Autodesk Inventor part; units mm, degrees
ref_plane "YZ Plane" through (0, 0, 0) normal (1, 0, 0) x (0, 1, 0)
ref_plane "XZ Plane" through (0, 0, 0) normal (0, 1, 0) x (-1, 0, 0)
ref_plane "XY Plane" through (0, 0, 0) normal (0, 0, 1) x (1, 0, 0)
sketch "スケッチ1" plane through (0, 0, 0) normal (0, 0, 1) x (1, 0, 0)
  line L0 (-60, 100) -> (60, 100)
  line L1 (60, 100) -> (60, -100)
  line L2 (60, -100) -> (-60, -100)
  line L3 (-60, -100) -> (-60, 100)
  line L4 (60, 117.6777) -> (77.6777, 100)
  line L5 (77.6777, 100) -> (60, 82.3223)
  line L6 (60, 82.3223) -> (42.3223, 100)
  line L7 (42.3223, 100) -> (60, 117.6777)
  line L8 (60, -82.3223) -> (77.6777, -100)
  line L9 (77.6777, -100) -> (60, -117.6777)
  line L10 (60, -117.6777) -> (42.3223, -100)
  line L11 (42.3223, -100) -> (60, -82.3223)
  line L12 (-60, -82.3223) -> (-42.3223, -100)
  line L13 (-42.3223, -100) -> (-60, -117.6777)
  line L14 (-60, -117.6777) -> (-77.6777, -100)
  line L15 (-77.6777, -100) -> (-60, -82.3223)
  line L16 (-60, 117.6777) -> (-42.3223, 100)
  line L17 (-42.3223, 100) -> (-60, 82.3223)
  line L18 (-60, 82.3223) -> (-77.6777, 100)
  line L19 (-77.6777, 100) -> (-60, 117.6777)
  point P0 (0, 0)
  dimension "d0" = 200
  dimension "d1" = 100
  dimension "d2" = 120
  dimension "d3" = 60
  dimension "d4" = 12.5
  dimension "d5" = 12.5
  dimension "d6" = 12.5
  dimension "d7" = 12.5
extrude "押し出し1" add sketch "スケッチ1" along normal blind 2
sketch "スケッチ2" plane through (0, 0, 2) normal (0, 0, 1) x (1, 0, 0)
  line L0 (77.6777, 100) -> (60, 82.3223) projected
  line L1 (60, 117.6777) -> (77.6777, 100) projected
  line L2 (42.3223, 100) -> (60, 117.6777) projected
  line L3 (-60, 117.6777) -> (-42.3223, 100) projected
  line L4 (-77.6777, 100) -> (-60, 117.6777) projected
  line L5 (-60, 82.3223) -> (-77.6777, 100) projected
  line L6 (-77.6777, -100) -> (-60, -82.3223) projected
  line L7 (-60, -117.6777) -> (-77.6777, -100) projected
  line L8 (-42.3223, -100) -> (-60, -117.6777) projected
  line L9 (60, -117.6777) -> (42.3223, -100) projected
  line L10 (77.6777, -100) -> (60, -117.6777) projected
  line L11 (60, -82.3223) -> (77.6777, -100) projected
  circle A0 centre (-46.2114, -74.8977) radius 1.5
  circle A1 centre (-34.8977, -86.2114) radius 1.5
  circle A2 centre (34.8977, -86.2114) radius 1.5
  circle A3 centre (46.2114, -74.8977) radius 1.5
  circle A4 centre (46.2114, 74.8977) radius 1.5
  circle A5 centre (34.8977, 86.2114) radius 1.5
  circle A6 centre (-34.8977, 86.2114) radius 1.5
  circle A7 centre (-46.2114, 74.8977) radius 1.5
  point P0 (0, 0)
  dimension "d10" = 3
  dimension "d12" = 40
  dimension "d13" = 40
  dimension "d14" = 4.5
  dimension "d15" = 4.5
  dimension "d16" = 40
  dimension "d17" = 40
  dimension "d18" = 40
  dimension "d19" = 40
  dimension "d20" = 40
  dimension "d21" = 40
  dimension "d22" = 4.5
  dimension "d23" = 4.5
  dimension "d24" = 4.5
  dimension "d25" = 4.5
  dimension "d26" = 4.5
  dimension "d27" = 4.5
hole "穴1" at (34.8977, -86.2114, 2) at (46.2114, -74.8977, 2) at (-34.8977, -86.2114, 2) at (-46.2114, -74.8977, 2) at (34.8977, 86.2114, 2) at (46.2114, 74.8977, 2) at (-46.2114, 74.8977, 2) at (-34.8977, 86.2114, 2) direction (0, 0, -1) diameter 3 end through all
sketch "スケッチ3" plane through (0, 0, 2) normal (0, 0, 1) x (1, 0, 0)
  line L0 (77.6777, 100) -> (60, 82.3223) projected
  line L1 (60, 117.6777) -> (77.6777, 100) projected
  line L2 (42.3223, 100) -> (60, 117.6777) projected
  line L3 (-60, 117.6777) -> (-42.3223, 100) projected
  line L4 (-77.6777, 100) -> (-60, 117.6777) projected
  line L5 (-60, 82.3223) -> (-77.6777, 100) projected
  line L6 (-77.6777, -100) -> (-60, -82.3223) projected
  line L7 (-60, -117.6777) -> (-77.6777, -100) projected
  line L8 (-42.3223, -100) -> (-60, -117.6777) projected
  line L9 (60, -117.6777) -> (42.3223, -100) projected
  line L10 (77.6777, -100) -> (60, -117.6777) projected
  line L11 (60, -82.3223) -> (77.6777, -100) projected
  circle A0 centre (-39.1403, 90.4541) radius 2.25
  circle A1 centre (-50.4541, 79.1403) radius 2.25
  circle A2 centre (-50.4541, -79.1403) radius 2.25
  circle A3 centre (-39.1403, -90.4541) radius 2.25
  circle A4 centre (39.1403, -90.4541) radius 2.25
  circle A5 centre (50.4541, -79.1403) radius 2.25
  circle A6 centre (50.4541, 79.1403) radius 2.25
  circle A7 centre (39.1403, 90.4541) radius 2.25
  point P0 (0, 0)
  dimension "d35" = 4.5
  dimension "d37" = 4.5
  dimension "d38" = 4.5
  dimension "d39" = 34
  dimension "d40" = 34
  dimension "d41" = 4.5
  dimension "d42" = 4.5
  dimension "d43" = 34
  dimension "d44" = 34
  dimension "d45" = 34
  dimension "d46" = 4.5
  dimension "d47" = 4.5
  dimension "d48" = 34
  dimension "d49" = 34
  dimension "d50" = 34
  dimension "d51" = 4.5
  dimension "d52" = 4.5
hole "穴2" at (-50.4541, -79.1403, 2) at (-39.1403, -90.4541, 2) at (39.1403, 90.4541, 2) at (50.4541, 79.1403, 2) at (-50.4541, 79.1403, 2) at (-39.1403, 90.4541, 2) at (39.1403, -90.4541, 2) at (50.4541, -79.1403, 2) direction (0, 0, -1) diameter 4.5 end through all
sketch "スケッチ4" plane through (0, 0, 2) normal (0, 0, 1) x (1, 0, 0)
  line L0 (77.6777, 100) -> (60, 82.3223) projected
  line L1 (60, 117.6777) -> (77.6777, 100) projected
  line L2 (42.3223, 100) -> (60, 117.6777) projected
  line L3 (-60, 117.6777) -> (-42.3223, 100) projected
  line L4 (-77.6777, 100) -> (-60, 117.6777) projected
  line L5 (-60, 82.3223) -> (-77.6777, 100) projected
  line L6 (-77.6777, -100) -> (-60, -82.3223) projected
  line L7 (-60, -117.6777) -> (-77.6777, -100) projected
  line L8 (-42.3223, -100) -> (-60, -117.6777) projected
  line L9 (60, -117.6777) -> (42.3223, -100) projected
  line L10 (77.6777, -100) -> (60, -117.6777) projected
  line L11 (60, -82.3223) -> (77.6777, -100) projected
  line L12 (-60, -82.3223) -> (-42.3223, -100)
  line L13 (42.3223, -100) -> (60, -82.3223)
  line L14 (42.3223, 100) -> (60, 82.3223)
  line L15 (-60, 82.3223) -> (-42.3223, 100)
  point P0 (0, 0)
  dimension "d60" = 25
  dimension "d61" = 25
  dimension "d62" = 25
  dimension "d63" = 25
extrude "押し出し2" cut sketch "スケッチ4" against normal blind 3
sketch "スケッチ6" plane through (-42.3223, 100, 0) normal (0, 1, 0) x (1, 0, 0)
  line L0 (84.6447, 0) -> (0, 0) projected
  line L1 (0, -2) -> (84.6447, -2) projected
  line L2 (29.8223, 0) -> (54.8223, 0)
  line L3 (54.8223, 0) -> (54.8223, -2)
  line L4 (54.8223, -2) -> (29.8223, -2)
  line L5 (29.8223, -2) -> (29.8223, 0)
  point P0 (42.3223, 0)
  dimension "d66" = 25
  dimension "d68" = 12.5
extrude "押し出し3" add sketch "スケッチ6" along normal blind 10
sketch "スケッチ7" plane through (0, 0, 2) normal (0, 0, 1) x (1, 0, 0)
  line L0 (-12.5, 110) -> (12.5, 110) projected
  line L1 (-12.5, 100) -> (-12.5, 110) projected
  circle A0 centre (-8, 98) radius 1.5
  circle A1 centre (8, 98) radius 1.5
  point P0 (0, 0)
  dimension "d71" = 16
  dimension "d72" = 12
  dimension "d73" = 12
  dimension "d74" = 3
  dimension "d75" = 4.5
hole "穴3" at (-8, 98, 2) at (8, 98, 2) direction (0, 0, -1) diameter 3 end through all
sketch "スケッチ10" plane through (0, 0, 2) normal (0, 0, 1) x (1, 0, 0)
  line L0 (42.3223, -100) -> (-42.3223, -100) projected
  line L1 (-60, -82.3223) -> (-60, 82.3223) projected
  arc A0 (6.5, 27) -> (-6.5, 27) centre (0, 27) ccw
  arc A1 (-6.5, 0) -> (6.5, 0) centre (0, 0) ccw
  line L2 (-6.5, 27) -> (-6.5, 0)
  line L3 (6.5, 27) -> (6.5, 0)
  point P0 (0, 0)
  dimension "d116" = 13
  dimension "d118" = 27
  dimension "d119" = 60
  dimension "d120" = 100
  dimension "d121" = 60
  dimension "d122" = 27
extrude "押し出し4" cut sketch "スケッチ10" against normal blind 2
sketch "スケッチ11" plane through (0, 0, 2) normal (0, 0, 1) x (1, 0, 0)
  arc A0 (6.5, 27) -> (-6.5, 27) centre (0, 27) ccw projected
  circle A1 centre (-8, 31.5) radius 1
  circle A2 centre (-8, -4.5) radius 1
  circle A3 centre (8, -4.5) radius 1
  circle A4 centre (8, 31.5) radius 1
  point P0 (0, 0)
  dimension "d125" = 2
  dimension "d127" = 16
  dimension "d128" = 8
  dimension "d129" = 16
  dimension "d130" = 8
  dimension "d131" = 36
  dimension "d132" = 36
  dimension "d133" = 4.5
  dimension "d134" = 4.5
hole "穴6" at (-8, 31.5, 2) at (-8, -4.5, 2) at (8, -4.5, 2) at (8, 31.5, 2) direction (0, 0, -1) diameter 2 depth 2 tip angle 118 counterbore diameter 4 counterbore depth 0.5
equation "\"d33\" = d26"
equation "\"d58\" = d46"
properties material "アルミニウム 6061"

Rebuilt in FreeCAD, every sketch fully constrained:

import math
import FreeCAD as App
import Part
import Sketcher

V = App.Vector


def add_polygon(sketch, points):
    """Adds a closed chain of lines whose ends are joined by coincident constraints."""
    first, n = sketch.GeometryCount, len(points)
    for a, b in zip(points, points[1:] + points[:1]):
        sketch.addGeometry(Part.LineSegment(App.Vector(*a, 0), App.Vector(*b, 0)), False)
    for i in range(n):
        sketch.addConstraint(Sketcher.Constraint("Coincident", first + i, 2, first + (i + 1) % n, 1))

doc = App.newDocument("Part")
body = doc.addObject("PartDesign::Body", "Body")

sketch1 = body.newObject("Sketcher::SketchObject", "Sketch")
sketch1.AttachmentSupport = (doc.getObject("XY_Plane"), [""])
sketch1.MapMode = "FlatFace"
add_polygon(sketch1, [(-78, 100), (-60, 82), (-60, -82), (-78, -100), (-60, -118), (-42, -100), (42, -100), (60, -118), (78, -100), (60, -82), (60, 82), (78, 100), (60, 118), (42, 100), (-42, 100), (-60, 118)])
sketch1.addConstraint([
    Sketcher.Constraint("Vertical", 1),
    Sketcher.Constraint("Horizontal", 5),
    Sketcher.Constraint("Vertical", 9),
    Sketcher.Constraint("Horizontal", 13),
    Sketcher.Constraint("Symmetric", 0, 2, 8, 2, -1, 1),
    Sketcher.Constraint("Symmetric", 2, 2, 10, 2, -1, 1),
    Sketcher.Constraint("Symmetric", 3, 2, 11, 2, -1, 1),
    Sketcher.Constraint("Symmetric", 4, 2, 12, 2, -1, 1),
    Sketcher.Constraint("Symmetric", 6, 2, 14, 2, -1, 1),
    Sketcher.Constraint("Symmetric", 7, 2, 15, 2, -1, 1),
    Sketcher.Constraint("Symmetric", 3, 2, 6, 2, -2),
    Sketcher.Constraint("Symmetric", 2, 2, 7, 2, -2),
    Sketcher.Constraint("Perpendicular", 0, 2),
    Sketcher.Constraint("Perpendicular", 2, 3),
    Sketcher.Constraint("Perpendicular", 3, 4),
    Sketcher.Constraint("Perpendicular", 4, 6),
    Sketcher.Constraint("Perpendicular", 6, 7),
    Sketcher.Constraint("Perpendicular", 8, 10),
    Sketcher.Constraint("Perpendicular", 12, 14),
    Sketcher.Constraint("Horizontal", 2, 2, 4, 2),
    Sketcher.Constraint("Vertical", 1, 2, 3, 2),
    Sketcher.Constraint("DistanceX", 0, 2, -1, 1, 60.0),
    Sketcher.Constraint("DistanceY", 2, 2, -1, 1, 100.0),
    Sketcher.Constraint("Distance", 0, 25.0),
])
pad1 = body.newObject("PartDesign::Pad", "Pad")
pad1.Profile = sketch1
pad1.Length = 2

sketch2 = body.newObject("Sketcher::SketchObject", "Sketch001")
sketch2.AttachmentSupport = (doc.getObject("XY_Plane"), [""])
sketch2.MapMode = "FlatFace"
sketch2.AttachmentOffset = App.Placement(V(0, 0, 2), App.Rotation())
sketch2.addGeometry([
    Part.Circle(V(34.9, -86.2, 0), V(0, 0, 1), 1.5),
    Part.Circle(V(46.2, -74.9, 0), V(0, 0, 1), 1.5),
    Part.Circle(V(-34.9, -86.2, 0), V(0, 0, 1), 1.5),
    Part.Circle(V(-46.2, -74.9, 0), V(0, 0, 1), 1.5),
    Part.Circle(V(34.9, 86.2, 0), V(0, 0, 1), 1.5),
    Part.Circle(V(46.2, 74.9, 0), V(0, 0, 1), 1.5),
    Part.Circle(V(-46.2, 74.9, 0), V(0, 0, 1), 1.5),
    Part.Circle(V(-34.9, 86.2, 0), V(0, 0, 1), 1.5),
], False)
sketch2.addConstraint([
    Sketcher.Constraint("Equal", 0, 1),
    Sketcher.Constraint("Equal", 1, 2),
    Sketcher.Constraint("Equal", 2, 3),
    Sketcher.Constraint("Equal", 3, 4),
    Sketcher.Constraint("Equal", 4, 5),
    Sketcher.Constraint("Equal", 5, 6),
    Sketcher.Constraint("Equal", 6, 7),
    Sketcher.Constraint("Symmetric", 2, 3, 4, 3, -1, 1),
    Sketcher.Constraint("Symmetric", 3, 3, 5, 3, -1, 1),
    Sketcher.Constraint("Symmetric", 1, 3, 6, 3, -1, 1),
    Sketcher.Constraint("Symmetric", 0, 3, 7, 3, -1, 1),
    Sketcher.Constraint("Symmetric", 0, 3, 2, 3, -2),
    Sketcher.Constraint("Symmetric", 1, 3, 3, 3, -2),
    Sketcher.Constraint("Diameter", 0, 3.0),
    Sketcher.Constraint("DistanceX", 2, 3, 1, 3, 81.109),
    Sketcher.Constraint("DistanceY", 1, 3, 4, 3, 161.109),
    Sketcher.Constraint("DistanceX", -1, 1, 0, 3, 34.8977),
    Sketcher.Constraint("DistanceY", 0, 3, -1, 1, 86.2114),
])
doc.recompute()
hole = body.newObject("PartDesign::Hole", "Hole")
hole.Profile = sketch2
hole.ThreadType = "None"
hole.Diameter = 3
hole.DepthType = "ThroughAll"

sketch3 = body.newObject("Sketcher::SketchObject", "Sketch002")
sketch3.AttachmentSupport = (doc.getObject("XY_Plane"), [""])
sketch3.MapMode = "FlatFace"
sketch3.AttachmentOffset = App.Placement(V(0, 0, 2), App.Rotation())
sketch3.addGeometry([
    Part.Circle(V(-50.5, -79.1, 0), V(0, 0, 1), 2.2),
    Part.Circle(V(-39.1, -90.5, 0), V(0, 0, 1), 2.2),
    Part.Circle(V(39.1, 90.5, 0), V(0, 0, 1), 2.2),
    Part.Circle(V(50.5, 79.1, 0), V(0, 0, 1), 2.2),
    Part.Circle(V(-50.5, 79.1, 0), V(0, 0, 1), 2.2),
    Part.Circle(V(-39.1, 90.5, 0), V(0, 0, 1), 2.2),
    Part.Circle(V(39.1, -90.5, 0), V(0, 0, 1), 2.2),
    Part.Circle(V(50.5, -79.1, 0), V(0, 0, 1), 2.2),
], False)
sketch3.addConstraint([
    Sketcher.Constraint("Equal", 0, 1),
    Sketcher.Constraint("Equal", 1, 2),
    Sketcher.Constraint("Equal", 2, 3),
    Sketcher.Constraint("Equal", 3, 4),
    Sketcher.Constraint("Equal", 4, 5),
    Sketcher.Constraint("Equal", 5, 6),
    Sketcher.Constraint("Equal", 6, 7),
    Sketcher.Constraint("Symmetric", 1, 3, 2, 3, -1, 1),
    Sketcher.Constraint("Symmetric", 0, 3, 3, 3, -1, 1),
    Sketcher.Constraint("Symmetric", 5, 3, 6, 3, -1, 1),
    Sketcher.Constraint("Symmetric", 4, 3, 7, 3, -1, 1),
    Sketcher.Constraint("Symmetric", 3, 3, 4, 3, -2),
    Sketcher.Constraint("Symmetric", 2, 3, 5, 3, -2),
    Sketcher.Constraint("Diameter", 0, 4.5),
    Sketcher.Constraint("DistanceX", 0, 3, -1, 1, 50.454),
    Sketcher.Constraint("DistanceY", 1, 3, -1, 1, 90.454),
    Sketcher.Constraint("DistanceY", 0, 3, -1, 1, 79.1403),
    Sketcher.Constraint("DistanceX", 1, 3, -1, 1, 39.1403),
])
doc.recompute()
hole2 = body.newObject("PartDesign::Hole", "Hole001")
hole2.Profile = sketch3
hole2.ThreadType = "None"
hole2.Diameter = 4.5
hole2.DepthType = "ThroughAll"

sketch4 = body.newObject("Sketcher::SketchObject", "Sketch003")
sketch4.AttachmentSupport = (doc.getObject("XY_Plane"), [""])
sketch4.MapMode = "FlatFace"
sketch4.AttachmentOffset = App.Placement(V(0, 0, 2), App.Rotation())
add_polygon(sketch4, [(60, 82), (78, 100), (60, 118), (42, 100)])
add_polygon(sketch4, [(-42, 100), (-60, 118), (-78, 100), (-60, 82)])
add_polygon(sketch4, [(-60, -82), (-78, -100), (-60, -118), (-42, -100)])
add_polygon(sketch4, [(42, -100), (60, -118), (78, -100), (60, -82)])
sketch4.addConstraint([
    Sketcher.Constraint("Symmetric", 0, 2, 8, 2, -1, 1),
    Sketcher.Constraint("Symmetric", 1, 2, 9, 2, -1, 1),
    Sketcher.Constraint("Symmetric", 2, 2, 10, 2, -1, 1),
    Sketcher.Constraint("Symmetric", 3, 2, 11, 2, -1, 1),
    Sketcher.Constraint("Symmetric", 4, 2, 12, 2, -1, 1),
    Sketcher.Constraint("Symmetric", 5, 2, 13, 2, -1, 1),
    Sketcher.Constraint("Symmetric", 6, 2, 14, 2, -1, 1),
    Sketcher.Constraint("Symmetric", 7, 2, 15, 2, -1, 1),
    Sketcher.Constraint("Symmetric", 1, 2, 4, 2, -2),
    Sketcher.Constraint("Symmetric", 0, 2, 5, 2, -2),
    Sketcher.Constraint("Symmetric", 3, 2, 6, 2, -2),
    Sketcher.Constraint("Symmetric", 2, 2, 7, 2, -2),
    Sketcher.Constraint("Perpendicular", 0, 1),
    Sketcher.Constraint("Perpendicular", 1, 2),
    Sketcher.Constraint("Perpendicular", 2, 3),
    Sketcher.Constraint("Parallel", 3, 4),
    Sketcher.Constraint("Horizontal", 0, 2, 2, 2),
    Sketcher.Constraint("Distance", 0, 25.0),
    Sketcher.Constraint("DistanceY", -1, 1, 0, 2, 100.0),
    Sketcher.Constraint("DistanceX", -1, 1, 1, 2, 60.0),
])
pocket1 = body.newObject("PartDesign::Pocket", "Pocket")
pocket1.Profile = sketch4
pocket1.Length = 3

sketch5 = body.newObject("Sketcher::SketchObject", "Sketch004")
sketch5.AttachmentSupport = (doc.getObject("XZ_Plane"), [""])
sketch5.MapMode = "FlatFace"
sketch5.AttachmentOffset = App.Placement(V(0, 0, -100), App.Rotation())
add_polygon(sketch5, [(12.5, 2), (12.5, 0), (-12.5, 0), (-12.5, 2)])
sketch5.addConstraint([
    Sketcher.Constraint("Vertical", 0),
    Sketcher.Constraint("Horizontal", 1),
    Sketcher.Constraint("Vertical", 2),
    Sketcher.Constraint("Horizontal", 3),
    Sketcher.Constraint("Symmetric", 0, 2, 1, 2, -1, 1),
    Sketcher.Constraint("DistanceX", 1, 2, 1, 1, 25.0),
    Sketcher.Constraint("DistanceY", 0, 2, 0, 1, 2.0),
])
pad2 = body.newObject("PartDesign::Pad", "Pad001")
pad2.Profile = sketch5
pad2.Length = 10
pad2.Reversed = True

sketch6 = body.newObject("Sketcher::SketchObject", "Sketch005")
sketch6.AttachmentSupport = (doc.getObject("XY_Plane"), [""])
sketch6.MapMode = "FlatFace"
sketch6.AttachmentOffset = App.Placement(V(0, 0, 2), App.Rotation())
sketch6.addGeometry([
    Part.Circle(V(-8, 98, 0), V(0, 0, 1), 1.5),
    Part.Circle(V(8, 98, 0), V(0, 0, 1), 1.5),
], False)
sketch6.addConstraint([
    Sketcher.Constraint("Equal", 0, 1),
    Sketcher.Constraint("Symmetric", 0, 3, 1, 3, -2),
    Sketcher.Constraint("Diameter", 0, 3.0),
    Sketcher.Constraint("DistanceX", 0, 3, -1, 1, 8.0),
    Sketcher.Constraint("DistanceY", -1, 1, 0, 3, 98.0),
])
doc.recompute()
hole3 = body.newObject("PartDesign::Hole", "Hole002")
hole3.Profile = sketch6
hole3.ThreadType = "None"
hole3.Diameter = 3
hole3.DepthType = "ThroughAll"

sketch7 = body.newObject("Sketcher::SketchObject", "Sketch006")
sketch7.AttachmentSupport = (doc.getObject("XY_Plane"), [""])
sketch7.MapMode = "FlatFace"
sketch7.AttachmentOffset = App.Placement(V(0, 0, 2), App.Rotation())
sketch7.addGeometry([
    Part.LineSegment(V(6, 0, 0), V(6, 27, 0)),
    Part.ArcOfCircle(Part.Circle(V(0, 27, 0), V(0, 0, 1), 6), math.radians(0), math.radians(180)),
    Part.LineSegment(V(-6, 27, 0), V(-6, 0, 0)),
    Part.ArcOfCircle(Part.Circle(V(0, 0, 0), V(0, 0, 1), 6), math.radians(180), math.radians(360)),
], False)
sketch7.addConstraint([
    Sketcher.Constraint("Tangent", 0, 2, 1, 1),
    Sketcher.Constraint("Tangent", 1, 2, 2, 1),
    Sketcher.Constraint("Tangent", 2, 2, 3, 1),
    Sketcher.Constraint("Tangent", 3, 2, 0, 1),
    Sketcher.Constraint("Vertical", 0),
    Sketcher.Constraint("Vertical", 2),
    Sketcher.Constraint("Coincident", 3, 3, -1, 1),
    Sketcher.Constraint("Radius", 1, 6.5),
    Sketcher.Constraint("DistanceY", 0, 1, 0, 2, 27.0),
])
pocket2 = body.newObject("PartDesign::Pocket", "Pocket001")
pocket2.Profile = sketch7
pocket2.Length = 2

sketch8 = body.newObject("Sketcher::SketchObject", "Sketch007")
sketch8.AttachmentSupport = (doc.getObject("XY_Plane"), [""])
sketch8.MapMode = "FlatFace"
sketch8.AttachmentOffset = App.Placement(V(0, 0, 2), App.Rotation())
sketch8.addGeometry([
    Part.Circle(V(-8, 31.5, 0), V(0, 0, 1), 1),
    Part.Circle(V(-8, -4.5, 0), V(0, 0, 1), 1),
    Part.Circle(V(8, -4.5, 0), V(0, 0, 1), 1),
    Part.Circle(V(8, 31.5, 0), V(0, 0, 1), 1),
], False)
sketch8.addConstraint([
    Sketcher.Constraint("Equal", 0, 1),
    Sketcher.Constraint("Equal", 1, 2),
    Sketcher.Constraint("Equal", 2, 3),
    Sketcher.Constraint("Symmetric", 1, 3, 2, 3, -2),
    Sketcher.Constraint("Symmetric", 0, 3, 3, 3, -2),
    Sketcher.Constraint("Vertical", 0, 3, 1, 3),
    Sketcher.Constraint("Diameter", 0, 2.0),
    Sketcher.Constraint("DistanceX", 0, 3, -1, 1, 8.0),
    Sketcher.Constraint("DistanceY", 1, 3, 0, 3, 36.0),
    Sketcher.Constraint("DistanceY", -1, 1, 0, 3, 31.5),
])
doc.recompute()
hole4 = body.newObject("PartDesign::Hole", "Hole003")
hole4.Profile = sketch8
hole4.ThreadType = "None"
hole4.Diameter = 2
hole4.DepthType = "Dimension"
hole4.Depth = 2
hole4.DrillPoint = "Angled"
hole4.DrillPointAngle = 118
hole4.HoleCutType = "Counterbore"
hole4.HoleCutDiameter = 4
hole4.HoleCutDepth = 0.5

doc.recompute()
